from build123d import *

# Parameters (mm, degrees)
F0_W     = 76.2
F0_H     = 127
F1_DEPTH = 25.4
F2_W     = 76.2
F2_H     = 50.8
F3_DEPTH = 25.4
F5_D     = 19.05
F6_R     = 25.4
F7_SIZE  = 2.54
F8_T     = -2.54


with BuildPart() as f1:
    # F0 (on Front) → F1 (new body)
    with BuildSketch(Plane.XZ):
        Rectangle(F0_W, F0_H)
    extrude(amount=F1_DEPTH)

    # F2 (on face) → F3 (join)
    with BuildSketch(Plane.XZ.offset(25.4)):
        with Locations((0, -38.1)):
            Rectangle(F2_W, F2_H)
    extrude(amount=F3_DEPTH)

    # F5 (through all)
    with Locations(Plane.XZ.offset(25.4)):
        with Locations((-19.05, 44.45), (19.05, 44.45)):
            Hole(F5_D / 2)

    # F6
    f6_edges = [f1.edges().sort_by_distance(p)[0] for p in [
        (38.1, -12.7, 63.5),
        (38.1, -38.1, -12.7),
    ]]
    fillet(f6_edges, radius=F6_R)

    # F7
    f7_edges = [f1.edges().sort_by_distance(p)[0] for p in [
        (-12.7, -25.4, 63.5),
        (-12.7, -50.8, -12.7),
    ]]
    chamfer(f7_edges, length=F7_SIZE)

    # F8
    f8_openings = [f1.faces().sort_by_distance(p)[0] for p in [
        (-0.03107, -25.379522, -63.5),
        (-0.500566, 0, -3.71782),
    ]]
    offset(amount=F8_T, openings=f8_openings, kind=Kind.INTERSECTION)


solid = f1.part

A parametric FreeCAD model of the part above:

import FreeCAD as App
import Part
import Sketcher
from FreeCAD import Vector
Q = App.Units.Quantity


def edges_at(feature, points):
    """Names of the edges that pass closest to the given points."""
    edges = feature.Shape.Edges
    near = lambda p: min(range(len(edges)), key=lambda i: edges[i].distToShape(Part.Vertex(*p))[0])
    return sorted({f"Edge{near(p) + 1}" for p in points})


def faces_at(feature, points):
    """Names of the faces that lie closest to the given points."""
    faces = feature.Shape.Faces
    near = lambda p: min(range(len(faces)), key=lambda i: faces[i].distToShape(Part.Vertex(*p))[0])
    return sorted({f"Face{near(p) + 1}" for p in points})


def add_polygon(sketch, points):
    """Adds a closed chain of lines whose ends are joined by coincident constraints."""
    first, n = sketch.GeometryCount, len(points)
    for a, b in zip(points, points[1:] + points[:1]):
        sketch.addGeometry(Part.LineSegment(App.Vector(*a, 0), App.Vector(*b, 0)), False)
    for i in range(n):
        sketch.addConstraint(Sketcher.Constraint("Coincident", first + i, 2, first + (i + 1) % n, 1))

doc = App.newDocument("Part")
body = doc.addObject("PartDesign::Body", "Body")

# Sketch on XZ plane
sketch1 = body.newObject("Sketcher::SketchObject", "Sketch")
sketch1.AttachmentSupport = (doc.getObject("XZ_Plane"), [""])
sketch1.MapMode = "FlatFace"
add_polygon(sketch1, [(-38, 64), (-38, -64), (38, -64), (38, 64)])  # lines 0-3
sketch1.addConstraint(Sketcher.Constraint("Vertical", 0))
sketch1.addConstraint(Sketcher.Constraint("Horizontal", 1))
sketch1.addConstraint(Sketcher.Constraint("Vertical", 2))
sketch1.addConstraint(Sketcher.Constraint("Horizontal", 3))
sketch1.addConstraint(Sketcher.Constraint("Symmetric", 0, 2, 2, 2, -1, 1))
sketch1.addConstraint(Sketcher.Constraint("DistanceX", 1, 1, 1, 2, Q("3 in")))
sketch1.addConstraint(Sketcher.Constraint("DistanceY", 0, 2, 0, 1, Q("5 in")))
pad1 = body.newObject("PartDesign::Pad", "Pad")
pad1.Profile = sketch1
pad1.Length = Q("1 in")

# Sketch on XZ plane
sketch2 = body.newObject("Sketcher::SketchObject", "Sketch001")
sketch2.AttachmentSupport = (doc.getObject("XZ_Plane"), [""])
sketch2.MapMode = "FlatFace"
sketch2.AttachmentOffset = App.Placement(Vector(0, 0, 1 * 25.4), App.Rotation())
add_polygon(sketch2, [(-38, -13), (-38, -64), (38, -64), (38, -13)])  # lines 0-3
sketch2.addConstraint(Sketcher.Constraint("Vertical", 0))
sketch2.addConstraint(Sketcher.Constraint("Horizontal", 1))
sketch2.addConstraint(Sketcher.Constraint("Vertical", 2))
sketch2.addConstraint(Sketcher.Constraint("Horizontal", 3))
sketch2.addConstraint(Sketcher.Constraint("DistanceX", 1, 1, 1, 2, Q("3 in")))
sketch2.addConstraint(Sketcher.Constraint("DistanceY", 0, 2, 0, 1, Q("2 in")))
sketch2.addConstraint(Sketcher.Constraint("DistanceX", 0, 2, -1, 1, Q("1.5 in")))
sketch2.addConstraint(Sketcher.Constraint("DistanceY", 0, 2, -1, 1, Q("2.5 in")))
pad2 = body.newObject("PartDesign::Pad", "Pad001")
pad2.Profile = sketch2
pad2.Length = Q("1 in")

# Sketch on XZ plane
sketch3 = body.newObject("Sketcher::SketchObject", "Sketch002")
sketch3.AttachmentSupport = (doc.getObject("XZ_Plane"), [""])
sketch3.MapMode = "FlatFace"
sketch3.AttachmentOffset = App.Placement(Vector(0, 0, 1 * 25.4), App.Rotation())
sketch3.addGeometry(Part.Circle(Vector(-19, 44, 0), Vector(0, 0, 1), 10), False)
sketch3.addGeometry(Part.Circle(Vector(19, 44, 0), Vector(0, 0, 1), 10), False)
sketch3.addConstraint(Sketcher.Constraint("Equal", 0, 1))
sketch3.addConstraint(Sketcher.Constraint("Symmetric", 0, 3, 1, 3, -2))
sketch3.addConstraint(Sketcher.Constraint("Diameter", 0, Q("0.75 in")))
sketch3.addConstraint(Sketcher.Constraint("DistanceX", 0, 3, 1, 3, Q("1.5 in")))
sketch3.addConstraint(Sketcher.Constraint("DistanceY", -1, 1, 0, 3, Q("1.75 in")))
doc.recompute()
hole = body.newObject("PartDesign::Hole", "Hole")
hole.Profile = sketch3
hole.ThreadType = "None"
hole.Diameter = Q("0.75 in")
hole.DepthType = "ThroughAll"
doc.recompute()

fillet = body.newObject("PartDesign::Fillet", "Fillet")
fillet.Base = (hole, edges_at(hole, [(38.1, -12.7, 63.5), (38.1, -38.1, -12.7)]))
fillet.Radius = Q("1 in")
doc.recompute()

chamfer = body.newObject("PartDesign::Chamfer", "Chamfer")
chamfer.Base = (fillet, edges_at(fillet, [(-12.7, -25.4, 63.5), (-12.7, -50.8, -12.7)]))
chamfer.Size = Q("0.1 in")
doc.recompute()

thickness = body.newObject("PartDesign::Thickness", "Thickness")
thickness.Base = (chamfer, faces_at(chamfer, [(0, -25.4, -63.5), (0, 0, 0)]))
thickness.Value = Q("0.1 in")
thickness.Reversed = True
thickness.Join = "Intersection"

doc.recompute()
